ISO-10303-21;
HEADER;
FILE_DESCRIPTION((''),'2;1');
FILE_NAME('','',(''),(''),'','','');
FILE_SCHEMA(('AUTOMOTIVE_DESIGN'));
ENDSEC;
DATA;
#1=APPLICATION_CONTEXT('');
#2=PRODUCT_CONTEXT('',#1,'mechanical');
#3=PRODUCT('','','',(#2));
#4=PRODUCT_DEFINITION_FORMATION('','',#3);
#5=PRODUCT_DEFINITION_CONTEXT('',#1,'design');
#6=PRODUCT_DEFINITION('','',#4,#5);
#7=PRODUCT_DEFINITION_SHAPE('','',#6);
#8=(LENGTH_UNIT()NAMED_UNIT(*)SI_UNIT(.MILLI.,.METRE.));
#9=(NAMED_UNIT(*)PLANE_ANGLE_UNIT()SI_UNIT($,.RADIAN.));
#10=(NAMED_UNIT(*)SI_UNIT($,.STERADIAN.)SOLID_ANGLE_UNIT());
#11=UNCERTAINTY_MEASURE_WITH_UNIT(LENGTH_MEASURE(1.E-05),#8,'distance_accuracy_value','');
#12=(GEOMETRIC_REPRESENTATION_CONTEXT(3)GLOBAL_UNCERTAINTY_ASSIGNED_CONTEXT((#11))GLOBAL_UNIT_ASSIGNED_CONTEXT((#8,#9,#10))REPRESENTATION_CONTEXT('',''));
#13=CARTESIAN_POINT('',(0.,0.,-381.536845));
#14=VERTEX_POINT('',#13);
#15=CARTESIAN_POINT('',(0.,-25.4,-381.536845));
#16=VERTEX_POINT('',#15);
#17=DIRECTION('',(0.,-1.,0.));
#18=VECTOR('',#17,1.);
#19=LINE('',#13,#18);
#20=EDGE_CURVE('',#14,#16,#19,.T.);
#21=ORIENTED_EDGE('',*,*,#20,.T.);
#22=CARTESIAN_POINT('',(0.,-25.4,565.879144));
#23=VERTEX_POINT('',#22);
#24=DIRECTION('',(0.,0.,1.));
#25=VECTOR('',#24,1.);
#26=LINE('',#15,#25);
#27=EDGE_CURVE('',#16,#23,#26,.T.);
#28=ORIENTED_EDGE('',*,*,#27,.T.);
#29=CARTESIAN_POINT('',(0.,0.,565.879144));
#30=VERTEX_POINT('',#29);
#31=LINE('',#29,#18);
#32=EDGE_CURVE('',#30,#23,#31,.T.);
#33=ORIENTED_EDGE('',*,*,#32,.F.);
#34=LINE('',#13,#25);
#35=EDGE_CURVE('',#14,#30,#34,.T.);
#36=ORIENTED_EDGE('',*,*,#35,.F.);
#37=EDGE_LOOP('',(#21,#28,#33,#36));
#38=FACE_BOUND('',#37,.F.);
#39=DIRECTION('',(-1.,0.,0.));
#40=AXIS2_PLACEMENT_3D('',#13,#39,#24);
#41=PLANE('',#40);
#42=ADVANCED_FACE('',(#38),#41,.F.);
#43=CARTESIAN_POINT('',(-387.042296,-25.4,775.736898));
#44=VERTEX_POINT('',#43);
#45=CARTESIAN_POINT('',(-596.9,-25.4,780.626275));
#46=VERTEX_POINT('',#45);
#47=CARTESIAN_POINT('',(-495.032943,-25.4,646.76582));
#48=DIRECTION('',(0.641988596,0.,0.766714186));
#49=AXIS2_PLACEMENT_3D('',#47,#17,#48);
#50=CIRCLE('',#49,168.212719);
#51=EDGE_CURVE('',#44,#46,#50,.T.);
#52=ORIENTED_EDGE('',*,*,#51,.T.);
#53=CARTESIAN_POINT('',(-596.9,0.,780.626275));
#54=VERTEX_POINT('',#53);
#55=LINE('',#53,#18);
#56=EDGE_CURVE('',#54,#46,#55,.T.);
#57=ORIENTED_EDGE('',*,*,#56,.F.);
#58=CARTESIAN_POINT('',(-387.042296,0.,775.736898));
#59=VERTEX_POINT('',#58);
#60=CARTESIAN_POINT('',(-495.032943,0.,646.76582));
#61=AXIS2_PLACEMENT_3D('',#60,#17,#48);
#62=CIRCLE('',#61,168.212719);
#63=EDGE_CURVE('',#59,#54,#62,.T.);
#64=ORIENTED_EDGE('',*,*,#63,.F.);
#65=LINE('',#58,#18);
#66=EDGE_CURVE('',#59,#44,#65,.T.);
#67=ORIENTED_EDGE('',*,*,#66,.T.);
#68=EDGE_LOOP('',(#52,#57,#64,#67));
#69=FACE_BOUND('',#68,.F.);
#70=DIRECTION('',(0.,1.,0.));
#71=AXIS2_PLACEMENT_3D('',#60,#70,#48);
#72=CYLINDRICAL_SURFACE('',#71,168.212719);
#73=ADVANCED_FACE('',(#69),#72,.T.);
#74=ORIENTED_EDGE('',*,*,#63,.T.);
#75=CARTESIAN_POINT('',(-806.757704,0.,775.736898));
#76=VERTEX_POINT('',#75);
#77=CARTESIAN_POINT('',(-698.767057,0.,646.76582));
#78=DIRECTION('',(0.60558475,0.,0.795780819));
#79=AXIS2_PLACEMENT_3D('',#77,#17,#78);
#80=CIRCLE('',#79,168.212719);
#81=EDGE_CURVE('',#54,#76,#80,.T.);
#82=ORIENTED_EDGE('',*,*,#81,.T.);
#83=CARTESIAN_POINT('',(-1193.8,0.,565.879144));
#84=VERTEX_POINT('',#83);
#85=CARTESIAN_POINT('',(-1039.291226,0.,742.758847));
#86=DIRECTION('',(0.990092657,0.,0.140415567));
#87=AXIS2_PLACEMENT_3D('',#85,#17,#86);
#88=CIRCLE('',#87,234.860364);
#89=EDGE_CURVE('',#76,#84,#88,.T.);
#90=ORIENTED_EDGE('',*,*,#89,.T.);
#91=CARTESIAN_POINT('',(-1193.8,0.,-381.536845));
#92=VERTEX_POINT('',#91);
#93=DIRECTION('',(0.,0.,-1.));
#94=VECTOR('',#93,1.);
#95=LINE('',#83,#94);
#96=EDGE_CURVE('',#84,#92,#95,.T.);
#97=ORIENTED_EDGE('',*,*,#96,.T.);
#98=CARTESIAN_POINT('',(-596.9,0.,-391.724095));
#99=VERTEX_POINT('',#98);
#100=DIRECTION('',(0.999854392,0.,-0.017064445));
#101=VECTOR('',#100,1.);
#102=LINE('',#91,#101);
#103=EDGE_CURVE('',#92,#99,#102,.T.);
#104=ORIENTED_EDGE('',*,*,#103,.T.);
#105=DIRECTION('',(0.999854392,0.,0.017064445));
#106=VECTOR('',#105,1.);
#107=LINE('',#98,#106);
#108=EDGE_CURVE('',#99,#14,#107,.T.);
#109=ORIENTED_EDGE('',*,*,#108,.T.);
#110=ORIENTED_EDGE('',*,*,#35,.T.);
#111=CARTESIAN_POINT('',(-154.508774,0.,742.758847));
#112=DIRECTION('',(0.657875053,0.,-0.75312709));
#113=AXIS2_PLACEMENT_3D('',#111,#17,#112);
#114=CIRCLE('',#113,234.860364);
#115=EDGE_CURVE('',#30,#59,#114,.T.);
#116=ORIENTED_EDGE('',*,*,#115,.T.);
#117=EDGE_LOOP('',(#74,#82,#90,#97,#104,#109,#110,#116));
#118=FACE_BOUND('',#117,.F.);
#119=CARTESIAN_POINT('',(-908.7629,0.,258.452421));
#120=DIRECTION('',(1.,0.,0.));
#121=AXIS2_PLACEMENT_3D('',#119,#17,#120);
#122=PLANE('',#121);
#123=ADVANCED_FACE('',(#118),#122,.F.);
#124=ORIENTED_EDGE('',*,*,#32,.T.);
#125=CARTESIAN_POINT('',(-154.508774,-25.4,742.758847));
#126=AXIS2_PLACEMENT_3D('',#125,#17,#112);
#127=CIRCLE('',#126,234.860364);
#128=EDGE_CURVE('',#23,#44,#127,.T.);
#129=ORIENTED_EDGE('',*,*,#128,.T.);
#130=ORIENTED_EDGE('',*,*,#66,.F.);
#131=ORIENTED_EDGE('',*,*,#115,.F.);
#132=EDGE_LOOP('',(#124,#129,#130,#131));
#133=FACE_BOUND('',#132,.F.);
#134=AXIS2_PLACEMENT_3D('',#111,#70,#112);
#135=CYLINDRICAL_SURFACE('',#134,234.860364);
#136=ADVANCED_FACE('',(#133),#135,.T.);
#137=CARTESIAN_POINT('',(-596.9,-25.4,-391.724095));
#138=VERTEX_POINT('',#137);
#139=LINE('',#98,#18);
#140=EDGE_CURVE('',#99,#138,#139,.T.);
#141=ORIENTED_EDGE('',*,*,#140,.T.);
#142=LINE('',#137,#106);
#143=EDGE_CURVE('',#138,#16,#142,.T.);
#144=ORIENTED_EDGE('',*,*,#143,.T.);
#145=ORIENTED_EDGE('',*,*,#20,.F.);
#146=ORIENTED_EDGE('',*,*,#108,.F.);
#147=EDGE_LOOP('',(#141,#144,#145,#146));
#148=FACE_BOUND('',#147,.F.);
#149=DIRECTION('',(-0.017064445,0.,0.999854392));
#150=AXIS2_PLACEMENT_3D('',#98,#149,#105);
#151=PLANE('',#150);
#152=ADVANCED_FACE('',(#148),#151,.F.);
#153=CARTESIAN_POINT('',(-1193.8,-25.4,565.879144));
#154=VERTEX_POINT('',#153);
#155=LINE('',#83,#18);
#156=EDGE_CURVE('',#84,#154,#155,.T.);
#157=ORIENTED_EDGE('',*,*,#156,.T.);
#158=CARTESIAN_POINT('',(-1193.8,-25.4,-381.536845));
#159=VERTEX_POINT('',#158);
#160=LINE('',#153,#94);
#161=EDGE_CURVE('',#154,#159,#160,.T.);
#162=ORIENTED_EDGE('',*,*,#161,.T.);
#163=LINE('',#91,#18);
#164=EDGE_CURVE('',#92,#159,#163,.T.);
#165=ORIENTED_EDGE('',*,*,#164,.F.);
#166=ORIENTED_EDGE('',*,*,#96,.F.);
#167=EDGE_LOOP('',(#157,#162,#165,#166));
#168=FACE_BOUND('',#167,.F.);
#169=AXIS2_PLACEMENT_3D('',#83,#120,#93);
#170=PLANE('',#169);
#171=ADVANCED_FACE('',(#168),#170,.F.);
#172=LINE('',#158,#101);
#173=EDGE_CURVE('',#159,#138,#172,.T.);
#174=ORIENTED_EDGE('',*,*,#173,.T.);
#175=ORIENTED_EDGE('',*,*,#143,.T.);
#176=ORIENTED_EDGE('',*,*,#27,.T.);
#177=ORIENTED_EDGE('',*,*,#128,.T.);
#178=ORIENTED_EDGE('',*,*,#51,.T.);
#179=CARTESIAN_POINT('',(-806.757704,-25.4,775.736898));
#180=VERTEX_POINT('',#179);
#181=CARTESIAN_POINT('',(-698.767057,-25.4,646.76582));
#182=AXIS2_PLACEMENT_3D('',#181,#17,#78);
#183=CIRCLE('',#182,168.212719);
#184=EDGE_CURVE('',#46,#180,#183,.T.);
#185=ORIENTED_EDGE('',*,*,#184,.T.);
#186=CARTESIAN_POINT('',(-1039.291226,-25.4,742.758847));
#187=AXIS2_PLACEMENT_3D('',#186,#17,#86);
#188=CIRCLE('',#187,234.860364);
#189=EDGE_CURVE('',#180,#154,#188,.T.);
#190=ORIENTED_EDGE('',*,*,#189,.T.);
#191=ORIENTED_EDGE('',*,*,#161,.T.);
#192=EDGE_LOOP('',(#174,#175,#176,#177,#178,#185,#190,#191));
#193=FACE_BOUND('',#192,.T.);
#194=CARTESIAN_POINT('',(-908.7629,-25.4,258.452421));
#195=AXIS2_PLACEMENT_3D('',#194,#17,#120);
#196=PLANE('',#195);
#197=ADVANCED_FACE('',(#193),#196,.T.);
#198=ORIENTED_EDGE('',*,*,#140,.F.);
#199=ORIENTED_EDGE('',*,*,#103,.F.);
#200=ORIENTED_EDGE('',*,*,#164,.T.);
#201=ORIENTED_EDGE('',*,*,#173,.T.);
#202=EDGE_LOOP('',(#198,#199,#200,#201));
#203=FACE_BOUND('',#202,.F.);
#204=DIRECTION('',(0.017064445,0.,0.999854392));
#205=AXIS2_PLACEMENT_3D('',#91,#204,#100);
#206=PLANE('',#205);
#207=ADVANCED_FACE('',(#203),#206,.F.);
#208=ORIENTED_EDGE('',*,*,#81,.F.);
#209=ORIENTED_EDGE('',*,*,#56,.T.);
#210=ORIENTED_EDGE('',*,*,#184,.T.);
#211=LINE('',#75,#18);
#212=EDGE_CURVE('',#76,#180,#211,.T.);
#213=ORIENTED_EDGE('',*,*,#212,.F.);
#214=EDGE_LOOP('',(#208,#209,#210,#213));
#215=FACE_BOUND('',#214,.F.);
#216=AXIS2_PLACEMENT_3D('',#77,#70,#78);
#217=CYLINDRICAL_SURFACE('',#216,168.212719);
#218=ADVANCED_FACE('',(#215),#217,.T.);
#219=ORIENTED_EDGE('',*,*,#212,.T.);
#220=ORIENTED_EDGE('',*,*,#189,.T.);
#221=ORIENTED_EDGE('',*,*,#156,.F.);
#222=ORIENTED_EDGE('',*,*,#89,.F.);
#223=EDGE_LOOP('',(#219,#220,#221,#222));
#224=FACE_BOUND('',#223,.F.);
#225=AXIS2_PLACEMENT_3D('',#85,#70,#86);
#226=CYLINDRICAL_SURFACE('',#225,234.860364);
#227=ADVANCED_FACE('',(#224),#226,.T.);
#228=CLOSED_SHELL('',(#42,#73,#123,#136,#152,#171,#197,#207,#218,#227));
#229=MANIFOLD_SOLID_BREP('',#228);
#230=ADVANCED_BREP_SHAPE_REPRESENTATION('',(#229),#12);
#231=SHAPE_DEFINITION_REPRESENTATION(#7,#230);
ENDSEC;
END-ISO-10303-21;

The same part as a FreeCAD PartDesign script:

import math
import FreeCAD as App
import Part
import Sketcher

V = App.Vector
Q = App.Units.Quantity

doc = App.newDocument("Part")
body = doc.addObject("PartDesign::Body", "Body")

# Sketch on XZ plane
sketch1 = body.newObject("Sketcher::SketchObject", "Sketch")
sketch1.AttachmentSupport = (doc.getObject("XZ_Plane"), [""])
sketch1.MapMode = "FlatFace"
sketch1.addGeometry([
    Part.ArcOfCircle(Part.Circle(V(-495.032943, 646.76582, 0), V(0, 0, 1), 168.212719), math.radians(50.059736), math.radians(127.270932)),  # 0
    Part.ArcOfCircle(Part.Circle(V(-698.767057, 646.76582, 0), V(0, 0, 1), 168.212719), math.radians(52.729068), math.radians(129.940264)),  # 1
    Part.ArcOfCircle(Part.Circle(V(-1039.291226, 742.758847, 0), V(0, 0, 1), 234.860364), math.radians(8.071894), math.radians(228.861987)),  # 2
    Part.LineSegment(V(-1193.8, 565.879144, 0), V(-1193.8, -381.536845, 0)),  # 3
    Part.LineSegment(V(-1193.8, -381.536845, 0), V(-596.9, -391.724095, 0)),  # 4
    Part.LineSegment(V(-596.9, -391.724095, 0), V(0, -381.536845, 0)),  # 5
    Part.LineSegment(V(0, -381.536845, 0), V(0, 565.879144, 0)),  # 6
    Part.ArcOfCircle(Part.Circle(V(-154.508774, 742.758847, 0), V(0, 0, 1), 234.860364), math.radians(-48.861987), math.radians(171.928106)),  # 7
], False)
sketch1.addConstraint([
    Sketcher.Constraint("Coincident", 0, 2, 1, 1),
    Sketcher.Constraint("Coincident", 1, 2, 2, 1),
    Sketcher.Constraint("Coincident", 2, 2, 3, 1),
    Sketcher.Constraint("Coincident", 3, 2, 4, 1),
    Sketcher.Constraint("Coincident", 4, 2, 5, 1),
    Sketcher.Constraint("Coincident", 5, 2, 6, 1),
    Sketcher.Constraint("Coincident", 6, 2, 7, 1),
    Sketcher.Constraint("Coincident", 7, 2, 0, 1),
    Sketcher.Constraint("Vertical", 3),
    Sketcher.Constraint("Vertical", 6),
    Sketcher.Constraint("Equal", 0, 1),
    Sketcher.Constraint("Equal", 2, 7),
    Sketcher.Constraint("PointOnObject", 5, 2, -2),
    Sketcher.Constraint("Horizontal", 0, 3, 1, 3),
    Sketcher.Constraint("Horizontal", 2, 3, 7, 3),
    Sketcher.Constraint("Horizontal", 3, 2, 5, 2),
    Sketcher.Constraint("Horizontal", 2, 2, 6, 2),
    Sketcher.Constraint("Horizontal", 1, 2, 7, 2),
    Sketcher.Constraint("Vertical", 0, 2, 4, 2),
    Sketcher.Constraint("DistanceX", 2, 2, -1, 1, Q("47 in")),
    Sketcher.Constraint("Radius", 0, 168.212719),
    Sketcher.Constraint("Radius", 2, 234.860364),
    Sketcher.Constraint("DistanceY", 3, 2, 3, 1, 947.415989),
    Sketcher.Constraint("DistanceY", -1, 1, 0, 3, 646.76582),
    Sketcher.Constraint("DistanceX", 2, 3, 1, 3, 340.524169),
    Sketcher.Constraint("DistanceX", 2, 3, 7, 3, 884.782451),
    Sketcher.Constraint("DistanceY", 2, 3, 0, 2, 37.867428),
    Sketcher.Constraint("DistanceY", 4, 2, 3, 2, 10.18725),
])
pad1 = body.newObject("PartDesign::Pad", "Pad")
pad1.Profile = sketch1
pad1.Length = Q("1 in")

doc.recompute()
